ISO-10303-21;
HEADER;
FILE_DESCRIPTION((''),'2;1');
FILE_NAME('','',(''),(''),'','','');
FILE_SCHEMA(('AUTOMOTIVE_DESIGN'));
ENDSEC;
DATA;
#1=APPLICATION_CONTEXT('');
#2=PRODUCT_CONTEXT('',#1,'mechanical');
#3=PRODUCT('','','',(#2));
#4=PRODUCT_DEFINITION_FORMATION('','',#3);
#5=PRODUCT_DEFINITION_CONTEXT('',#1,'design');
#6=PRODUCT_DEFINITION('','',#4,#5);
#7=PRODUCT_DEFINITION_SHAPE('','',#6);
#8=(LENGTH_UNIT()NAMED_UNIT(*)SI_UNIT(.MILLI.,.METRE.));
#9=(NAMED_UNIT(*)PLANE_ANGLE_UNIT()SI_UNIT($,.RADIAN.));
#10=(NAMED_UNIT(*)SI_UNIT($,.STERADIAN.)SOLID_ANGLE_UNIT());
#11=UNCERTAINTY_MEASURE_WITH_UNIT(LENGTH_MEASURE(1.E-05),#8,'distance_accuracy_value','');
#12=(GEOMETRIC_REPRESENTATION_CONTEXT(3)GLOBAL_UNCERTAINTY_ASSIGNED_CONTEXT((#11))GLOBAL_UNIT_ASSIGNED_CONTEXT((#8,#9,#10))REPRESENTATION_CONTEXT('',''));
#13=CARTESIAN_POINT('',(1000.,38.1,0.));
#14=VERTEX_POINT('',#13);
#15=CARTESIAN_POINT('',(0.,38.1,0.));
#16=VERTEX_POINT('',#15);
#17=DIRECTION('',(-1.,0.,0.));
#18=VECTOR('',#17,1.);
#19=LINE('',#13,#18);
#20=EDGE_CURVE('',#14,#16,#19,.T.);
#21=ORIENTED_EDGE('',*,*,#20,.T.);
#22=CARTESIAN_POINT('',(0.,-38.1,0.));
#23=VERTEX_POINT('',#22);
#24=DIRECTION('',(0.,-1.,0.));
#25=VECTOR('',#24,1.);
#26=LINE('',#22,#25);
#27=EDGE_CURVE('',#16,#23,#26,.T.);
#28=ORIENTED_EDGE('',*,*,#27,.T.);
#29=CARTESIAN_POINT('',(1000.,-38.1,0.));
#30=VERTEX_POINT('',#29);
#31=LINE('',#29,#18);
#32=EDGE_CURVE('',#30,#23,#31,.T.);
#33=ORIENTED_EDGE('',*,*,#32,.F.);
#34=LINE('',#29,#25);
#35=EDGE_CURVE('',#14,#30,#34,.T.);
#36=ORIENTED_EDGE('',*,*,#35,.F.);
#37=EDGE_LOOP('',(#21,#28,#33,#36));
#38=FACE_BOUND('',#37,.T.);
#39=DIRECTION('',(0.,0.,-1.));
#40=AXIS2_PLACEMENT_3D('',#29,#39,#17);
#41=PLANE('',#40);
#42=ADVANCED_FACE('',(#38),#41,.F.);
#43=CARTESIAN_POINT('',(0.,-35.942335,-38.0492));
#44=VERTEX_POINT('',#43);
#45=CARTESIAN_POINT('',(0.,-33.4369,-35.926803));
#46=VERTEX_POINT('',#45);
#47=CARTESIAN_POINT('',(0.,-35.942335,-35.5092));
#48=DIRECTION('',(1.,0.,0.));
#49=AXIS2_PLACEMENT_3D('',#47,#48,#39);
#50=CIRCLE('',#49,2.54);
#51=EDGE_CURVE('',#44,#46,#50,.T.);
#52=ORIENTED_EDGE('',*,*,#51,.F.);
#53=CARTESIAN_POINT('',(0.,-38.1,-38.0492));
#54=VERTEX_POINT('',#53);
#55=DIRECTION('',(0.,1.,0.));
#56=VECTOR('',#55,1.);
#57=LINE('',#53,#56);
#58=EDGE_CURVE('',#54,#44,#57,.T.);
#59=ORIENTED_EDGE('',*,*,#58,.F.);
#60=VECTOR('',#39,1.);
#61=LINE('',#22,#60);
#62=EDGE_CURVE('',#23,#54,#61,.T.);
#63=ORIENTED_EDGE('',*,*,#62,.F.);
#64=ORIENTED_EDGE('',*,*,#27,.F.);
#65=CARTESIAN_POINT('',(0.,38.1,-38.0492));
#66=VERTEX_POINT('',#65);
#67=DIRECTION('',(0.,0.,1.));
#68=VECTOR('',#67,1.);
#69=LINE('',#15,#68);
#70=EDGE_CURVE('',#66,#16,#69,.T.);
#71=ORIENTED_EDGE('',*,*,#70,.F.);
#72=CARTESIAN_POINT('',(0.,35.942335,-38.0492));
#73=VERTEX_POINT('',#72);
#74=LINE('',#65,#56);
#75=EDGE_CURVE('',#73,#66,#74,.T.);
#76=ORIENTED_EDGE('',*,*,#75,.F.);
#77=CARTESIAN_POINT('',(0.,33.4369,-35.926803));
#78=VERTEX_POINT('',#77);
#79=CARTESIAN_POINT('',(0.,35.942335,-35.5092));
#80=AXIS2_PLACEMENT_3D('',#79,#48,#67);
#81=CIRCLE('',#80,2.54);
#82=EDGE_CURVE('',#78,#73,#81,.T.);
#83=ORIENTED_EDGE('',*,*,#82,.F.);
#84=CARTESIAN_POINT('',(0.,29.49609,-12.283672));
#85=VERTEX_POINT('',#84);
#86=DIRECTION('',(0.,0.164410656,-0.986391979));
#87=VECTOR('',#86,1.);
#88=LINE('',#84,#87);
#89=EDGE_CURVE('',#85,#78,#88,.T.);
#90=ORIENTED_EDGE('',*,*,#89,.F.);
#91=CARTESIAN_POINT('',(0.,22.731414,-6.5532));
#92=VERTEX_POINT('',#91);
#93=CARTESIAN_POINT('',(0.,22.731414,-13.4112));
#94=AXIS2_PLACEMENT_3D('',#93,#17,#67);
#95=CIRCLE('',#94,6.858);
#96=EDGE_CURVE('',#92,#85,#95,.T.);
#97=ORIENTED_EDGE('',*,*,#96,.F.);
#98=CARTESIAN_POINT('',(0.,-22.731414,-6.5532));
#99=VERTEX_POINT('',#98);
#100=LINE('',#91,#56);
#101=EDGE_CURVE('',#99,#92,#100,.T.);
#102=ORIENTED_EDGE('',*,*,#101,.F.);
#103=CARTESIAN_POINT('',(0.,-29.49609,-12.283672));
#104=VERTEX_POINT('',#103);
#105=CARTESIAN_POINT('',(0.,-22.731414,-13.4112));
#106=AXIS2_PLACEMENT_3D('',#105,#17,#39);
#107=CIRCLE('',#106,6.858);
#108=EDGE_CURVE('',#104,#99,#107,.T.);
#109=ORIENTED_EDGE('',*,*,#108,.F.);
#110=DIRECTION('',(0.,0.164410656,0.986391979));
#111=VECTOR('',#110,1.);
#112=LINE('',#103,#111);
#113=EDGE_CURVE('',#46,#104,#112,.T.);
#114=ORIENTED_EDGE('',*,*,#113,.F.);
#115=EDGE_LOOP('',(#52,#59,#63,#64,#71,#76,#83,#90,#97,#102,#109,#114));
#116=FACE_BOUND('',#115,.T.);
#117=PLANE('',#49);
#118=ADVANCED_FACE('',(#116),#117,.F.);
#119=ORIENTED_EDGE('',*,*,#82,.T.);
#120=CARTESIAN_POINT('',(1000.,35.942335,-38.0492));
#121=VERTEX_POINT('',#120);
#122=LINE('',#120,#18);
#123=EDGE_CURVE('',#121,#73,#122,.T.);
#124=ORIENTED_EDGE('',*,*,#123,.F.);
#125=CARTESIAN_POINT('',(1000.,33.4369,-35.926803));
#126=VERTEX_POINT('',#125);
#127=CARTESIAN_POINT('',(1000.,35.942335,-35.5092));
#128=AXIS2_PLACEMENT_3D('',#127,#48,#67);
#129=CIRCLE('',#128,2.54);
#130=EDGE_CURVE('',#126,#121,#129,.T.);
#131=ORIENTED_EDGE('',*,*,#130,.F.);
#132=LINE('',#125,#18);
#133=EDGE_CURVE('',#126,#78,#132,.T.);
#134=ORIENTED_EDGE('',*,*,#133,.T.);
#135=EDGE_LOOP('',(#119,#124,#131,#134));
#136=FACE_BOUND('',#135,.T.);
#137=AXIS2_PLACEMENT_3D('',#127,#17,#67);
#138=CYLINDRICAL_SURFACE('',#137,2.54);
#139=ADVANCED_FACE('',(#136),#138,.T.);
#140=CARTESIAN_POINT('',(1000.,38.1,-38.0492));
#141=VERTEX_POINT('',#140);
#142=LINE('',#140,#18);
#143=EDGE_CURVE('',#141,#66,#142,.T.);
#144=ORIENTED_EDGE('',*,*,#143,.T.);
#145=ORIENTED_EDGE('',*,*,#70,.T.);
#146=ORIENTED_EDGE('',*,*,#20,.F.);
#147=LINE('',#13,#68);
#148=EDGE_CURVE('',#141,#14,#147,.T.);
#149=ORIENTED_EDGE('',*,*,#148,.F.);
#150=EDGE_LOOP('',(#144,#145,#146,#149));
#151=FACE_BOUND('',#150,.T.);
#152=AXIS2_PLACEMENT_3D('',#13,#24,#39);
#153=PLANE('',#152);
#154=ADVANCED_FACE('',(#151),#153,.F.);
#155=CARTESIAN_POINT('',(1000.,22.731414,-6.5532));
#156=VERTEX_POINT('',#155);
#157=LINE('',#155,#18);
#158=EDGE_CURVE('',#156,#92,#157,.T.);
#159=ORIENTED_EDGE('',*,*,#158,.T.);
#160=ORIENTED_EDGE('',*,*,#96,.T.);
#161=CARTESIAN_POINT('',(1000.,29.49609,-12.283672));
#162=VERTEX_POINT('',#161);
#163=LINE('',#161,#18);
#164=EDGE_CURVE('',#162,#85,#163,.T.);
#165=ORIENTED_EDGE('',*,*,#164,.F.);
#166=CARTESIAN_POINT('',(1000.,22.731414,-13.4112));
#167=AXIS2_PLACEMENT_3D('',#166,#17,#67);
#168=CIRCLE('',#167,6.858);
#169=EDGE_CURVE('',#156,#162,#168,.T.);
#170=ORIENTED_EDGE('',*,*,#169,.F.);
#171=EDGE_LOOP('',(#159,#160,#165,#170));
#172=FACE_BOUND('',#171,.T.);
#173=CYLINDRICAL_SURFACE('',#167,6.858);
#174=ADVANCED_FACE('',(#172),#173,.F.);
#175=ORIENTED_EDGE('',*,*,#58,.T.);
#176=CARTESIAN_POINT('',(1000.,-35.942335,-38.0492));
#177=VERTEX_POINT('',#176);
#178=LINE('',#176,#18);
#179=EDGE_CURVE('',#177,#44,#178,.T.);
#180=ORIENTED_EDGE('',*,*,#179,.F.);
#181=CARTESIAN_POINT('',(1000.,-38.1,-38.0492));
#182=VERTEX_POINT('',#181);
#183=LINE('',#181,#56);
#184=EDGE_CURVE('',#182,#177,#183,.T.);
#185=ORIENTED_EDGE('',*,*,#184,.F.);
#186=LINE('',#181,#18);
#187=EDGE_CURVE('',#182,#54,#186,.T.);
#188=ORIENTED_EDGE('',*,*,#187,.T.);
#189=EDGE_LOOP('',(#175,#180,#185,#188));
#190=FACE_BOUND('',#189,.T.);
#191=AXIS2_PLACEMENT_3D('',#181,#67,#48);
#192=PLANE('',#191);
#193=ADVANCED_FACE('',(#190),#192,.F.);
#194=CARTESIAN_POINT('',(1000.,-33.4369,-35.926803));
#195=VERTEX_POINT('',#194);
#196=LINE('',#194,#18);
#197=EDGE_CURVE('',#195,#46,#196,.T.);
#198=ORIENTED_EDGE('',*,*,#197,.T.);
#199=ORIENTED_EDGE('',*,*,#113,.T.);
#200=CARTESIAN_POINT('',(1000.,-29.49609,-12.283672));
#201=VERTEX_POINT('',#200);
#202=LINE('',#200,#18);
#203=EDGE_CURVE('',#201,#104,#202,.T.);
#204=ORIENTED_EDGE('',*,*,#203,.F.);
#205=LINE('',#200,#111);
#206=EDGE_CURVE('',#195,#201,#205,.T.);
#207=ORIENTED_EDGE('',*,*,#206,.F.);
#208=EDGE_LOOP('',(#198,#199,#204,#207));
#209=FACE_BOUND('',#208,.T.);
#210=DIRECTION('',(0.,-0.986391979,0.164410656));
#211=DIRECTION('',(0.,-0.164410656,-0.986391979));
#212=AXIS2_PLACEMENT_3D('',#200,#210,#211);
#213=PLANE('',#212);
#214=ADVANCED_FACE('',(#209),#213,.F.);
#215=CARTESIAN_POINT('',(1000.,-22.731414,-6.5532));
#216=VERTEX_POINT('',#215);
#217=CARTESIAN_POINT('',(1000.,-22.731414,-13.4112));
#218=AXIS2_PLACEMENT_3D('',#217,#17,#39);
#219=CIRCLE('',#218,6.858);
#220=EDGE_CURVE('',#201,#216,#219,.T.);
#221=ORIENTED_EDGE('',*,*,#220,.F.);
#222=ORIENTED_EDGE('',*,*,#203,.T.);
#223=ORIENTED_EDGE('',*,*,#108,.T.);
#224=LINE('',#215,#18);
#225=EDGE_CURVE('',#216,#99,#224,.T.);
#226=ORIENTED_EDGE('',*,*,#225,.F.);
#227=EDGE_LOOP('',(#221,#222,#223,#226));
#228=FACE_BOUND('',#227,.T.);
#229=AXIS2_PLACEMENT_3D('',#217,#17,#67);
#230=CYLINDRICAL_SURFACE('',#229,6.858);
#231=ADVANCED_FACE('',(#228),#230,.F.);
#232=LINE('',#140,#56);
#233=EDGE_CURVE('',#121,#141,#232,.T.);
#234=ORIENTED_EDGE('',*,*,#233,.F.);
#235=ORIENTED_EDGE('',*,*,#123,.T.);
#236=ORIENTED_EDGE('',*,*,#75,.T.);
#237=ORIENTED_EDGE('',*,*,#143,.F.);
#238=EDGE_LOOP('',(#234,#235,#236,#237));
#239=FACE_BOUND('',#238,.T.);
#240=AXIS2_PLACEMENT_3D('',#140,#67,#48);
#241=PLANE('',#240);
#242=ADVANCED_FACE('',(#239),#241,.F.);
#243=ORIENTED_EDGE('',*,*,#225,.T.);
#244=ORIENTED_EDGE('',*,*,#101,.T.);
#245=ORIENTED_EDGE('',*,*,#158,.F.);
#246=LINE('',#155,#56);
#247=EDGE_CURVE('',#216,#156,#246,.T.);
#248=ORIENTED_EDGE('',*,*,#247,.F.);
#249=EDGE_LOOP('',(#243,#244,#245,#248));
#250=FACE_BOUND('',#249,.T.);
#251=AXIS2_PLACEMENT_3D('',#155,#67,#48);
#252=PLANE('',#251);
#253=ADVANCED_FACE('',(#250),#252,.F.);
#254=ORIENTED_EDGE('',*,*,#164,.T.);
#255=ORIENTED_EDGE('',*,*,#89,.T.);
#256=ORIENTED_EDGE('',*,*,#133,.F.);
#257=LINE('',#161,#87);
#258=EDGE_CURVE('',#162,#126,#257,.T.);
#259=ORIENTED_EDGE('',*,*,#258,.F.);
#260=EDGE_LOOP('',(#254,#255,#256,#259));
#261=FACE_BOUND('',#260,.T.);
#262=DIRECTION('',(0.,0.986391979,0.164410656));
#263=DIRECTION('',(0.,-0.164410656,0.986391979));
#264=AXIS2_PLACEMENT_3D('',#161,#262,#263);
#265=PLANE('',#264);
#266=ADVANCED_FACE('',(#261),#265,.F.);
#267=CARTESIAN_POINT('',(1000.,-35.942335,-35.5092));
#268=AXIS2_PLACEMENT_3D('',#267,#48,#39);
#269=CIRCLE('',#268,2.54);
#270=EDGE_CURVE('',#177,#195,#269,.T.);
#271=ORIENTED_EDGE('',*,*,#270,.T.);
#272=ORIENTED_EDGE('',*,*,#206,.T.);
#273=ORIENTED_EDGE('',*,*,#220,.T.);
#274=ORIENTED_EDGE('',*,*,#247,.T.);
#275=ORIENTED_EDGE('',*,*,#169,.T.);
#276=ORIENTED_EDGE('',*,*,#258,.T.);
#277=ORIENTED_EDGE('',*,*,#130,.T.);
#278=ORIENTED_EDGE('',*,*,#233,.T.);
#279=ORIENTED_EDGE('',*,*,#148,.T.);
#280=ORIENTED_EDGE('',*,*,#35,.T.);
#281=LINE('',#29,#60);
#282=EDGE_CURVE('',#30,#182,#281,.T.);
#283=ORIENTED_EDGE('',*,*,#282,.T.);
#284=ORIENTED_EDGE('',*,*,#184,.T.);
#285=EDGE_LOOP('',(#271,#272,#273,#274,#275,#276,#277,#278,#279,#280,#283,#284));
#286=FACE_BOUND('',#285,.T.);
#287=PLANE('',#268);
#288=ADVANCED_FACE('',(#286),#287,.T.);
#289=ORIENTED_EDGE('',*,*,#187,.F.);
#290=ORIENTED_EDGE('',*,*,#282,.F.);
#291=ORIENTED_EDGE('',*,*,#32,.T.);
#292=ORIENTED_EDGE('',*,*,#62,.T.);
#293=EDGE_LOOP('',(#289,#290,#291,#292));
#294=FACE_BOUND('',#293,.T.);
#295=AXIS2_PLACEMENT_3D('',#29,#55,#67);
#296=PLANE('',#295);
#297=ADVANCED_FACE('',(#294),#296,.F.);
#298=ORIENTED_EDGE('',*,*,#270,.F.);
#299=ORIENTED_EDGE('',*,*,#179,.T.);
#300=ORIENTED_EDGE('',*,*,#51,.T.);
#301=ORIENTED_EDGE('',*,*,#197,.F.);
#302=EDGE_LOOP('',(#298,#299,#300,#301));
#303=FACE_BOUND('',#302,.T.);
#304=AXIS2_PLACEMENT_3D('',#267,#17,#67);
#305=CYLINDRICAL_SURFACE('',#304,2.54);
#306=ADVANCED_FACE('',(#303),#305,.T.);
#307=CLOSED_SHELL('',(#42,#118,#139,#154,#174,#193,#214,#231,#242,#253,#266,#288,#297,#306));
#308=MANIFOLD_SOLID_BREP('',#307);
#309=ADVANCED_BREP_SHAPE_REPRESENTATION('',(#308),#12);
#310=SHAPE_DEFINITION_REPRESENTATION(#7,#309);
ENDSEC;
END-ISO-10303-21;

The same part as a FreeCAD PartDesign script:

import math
import FreeCAD as App
import Part
import Sketcher

V = App.Vector
Q = App.Units.Quantity

doc = App.newDocument("Part")
body = doc.addObject("PartDesign::Body", "Body")

sketch1 = body.newObject("Sketcher::SketchObject", "Sketch")
sketch1.AttachmentSupport = (doc.getObject("YZ_Plane"), [""])
sketch1.MapMode = "FlatFace"
sketch1.addGeometry(Part.LineSegment(V(38.1, 0, 0), V(-38.1, 0, 0)), False)
sketch1.addGeometry(Part.LineSegment(V(-38.1, 0, 0), V(-38.1, -38.0492, 0)), False)
sketch1.addGeometry(Part.LineSegment(V(-38.1, -38.0492, 0), V(-35.942335, -38.0492, 0)), False)
sketch1.addGeometry(Part.ArcOfCircle(Part.Circle(V(-35.942335, -35.5092, 0), V(0, 0, 1), 2.54), math.radians(-90), math.radians(-9.463)), False)
sketch1.addGeometry(Part.LineSegment(V(-33.4369, -35.926803, 0), V(-29.49609, -12.283672, 0)), False)
sketch1.addGeometry(Part.ArcOfCircle(Part.Circle(V(-22.731414, -13.4112, 0), V(0, 0, 1), 6.858), math.radians(90), math.radians(170.537)), False)
sketch1.addGeometry(Part.LineSegment(V(-22.731414, -6.5532, 0), V(22.731414, -6.5532, 0)), False)
sketch1.addGeometry(Part.ArcOfCircle(Part.Circle(V(22.731414, -13.4112, 0), V(0, 0, 1), 6.858), math.radians(9.463), math.radians(90)), False)
sketch1.addGeometry(Part.LineSegment(V(29.49609, -12.283672, 0), V(33.4369, -35.926803, 0)), False)
sketch1.addGeometry(Part.ArcOfCircle(Part.Circle(V(35.942335, -35.5092, 0), V(0, 0, 1), 2.54), math.radians(-170.537), math.radians(-90)), False)
sketch1.addGeometry(Part.LineSegment(V(35.942335, -38.0492, 0), V(38.1, -38.0492, 0)), False)
sketch1.addGeometry(Part.LineSegment(V(38.1, -38.0492, 0), V(38.1, 0, 0)), False)
sketch1.addConstraint(Sketcher.Constraint("Coincident", 0, 2, 1, 1))
sketch1.addConstraint(Sketcher.Constraint("Coincident", 1, 2, 2, 1))
sketch1.addConstraint(Sketcher.Constraint("Coincident", 2, 2, 3, 1))
sketch1.addConstraint(Sketcher.Constraint("Coincident", 3, 2, 4, 1))
sketch1.addConstraint(Sketcher.Constraint("Coincident", 4, 2, 5, 2))
sketch1.addConstraint(Sketcher.Constraint("Coincident", 5, 1, 6, 1))
sketch1.addConstraint(Sketcher.Constraint("Coincident", 6, 2, 7, 2))
sketch1.addConstraint(Sketcher.Constraint("Coincident", 7, 1, 8, 1))
sketch1.addConstraint(Sketcher.Constraint("Coincident", 8, 2, 9, 1))
sketch1.addConstraint(Sketcher.Constraint("Coincident", 9, 2, 10, 1))
sketch1.addConstraint(Sketcher.Constraint("Coincident", 10, 2, 11, 1))
sketch1.addConstraint(Sketcher.Constraint("Coincident", 11, 2, 0, 1))
sketch1.addConstraint(Sketcher.Constraint("Horizontal", 0))
sketch1.addConstraint(Sketcher.Constraint("Vertical", 1))
sketch1.addConstraint(Sketcher.Constraint("Horizontal", 2))
sketch1.addConstraint(Sketcher.Constraint("Horizontal", 6))
sketch1.addConstraint(Sketcher.Constraint("Horizontal", 10))
sketch1.addConstraint(Sketcher.Constraint("Vertical", 11))
sketch1.addConstraint(Sketcher.Constraint("PointOnObject", 0, 2, -1))
sketch1.addConstraint(Sketcher.Constraint("Radius", 3, Q("0.1 in")))
sketch1.addConstraint(Sketcher.Constraint("Radius", 9, Q("0.1 in")))
sketch1.addConstraint(Sketcher.Constraint("DistanceX", 0, 2, 0, 1, Q("3 in")))
sketch1.addConstraint(Sketcher.Constraint("Radius", 5, Q("0.27 in")))
sketch1.addConstraint(Sketcher.Constraint("Radius", 7, Q("0.27 in")))
sketch1.addConstraint(Sketcher.Constraint("DistanceX", 0, 2, -1, 1, Q("1.5 in")))
sketch1.addConstraint(Sketcher.Constraint("DistanceY", 1, 2, 9, 3, Q("0.1 in")))
sketch1.addConstraint(Sketcher.Constraint("DistanceY", 1, 2, 1, 1, Q("1.498 in")))
sketch1.addConstraint(Sketcher.Constraint("DistanceY", 3, 3, 5, 3, Q("0.87 in")))
sketch1.addConstraint(Sketcher.Constraint("DistanceX", 3, 2, -1, 1, 33.4369))
sketch1.addConstraint(Sketcher.Constraint("DistanceX", -1, 1, 8, 2, 33.4369))
sketch1.addConstraint(Sketcher.Constraint("DistanceX", 2, 1, 2, 2, 2.157665))
sketch1.addConstraint(Sketcher.Constraint("DistanceX", 6, 1, 6, 2, 45.462828))
sketch1.addConstraint(Sketcher.Constraint("DistanceX", 10, 1, 10, 2, 2.157665))
sketch1.addConstraint(Sketcher.Constraint("DistanceX", 4, 2, -1, 1, 29.49609))
sketch1.addConstraint(Sketcher.Constraint("DistanceY", 4, 2, -1, 1, 12.283672))
sketch1.addConstraint(Sketcher.Constraint("DistanceX", -1, 1, 7, 1, 29.49609))
sketch1.addConstraint(Sketcher.Constraint("DistanceY", 7, 1, -1, 1, 12.283672))
sketch1.addConstraint(Sketcher.Constraint("DistanceX", 3, 3, 5, 3, 13.210921))
sketch1.addConstraint(Sketcher.Constraint("DistanceX", 7, 3, 9, 3, 13.210921))
sketch1.addConstraint(Sketcher.Constraint("DistanceX", 3, 3, 5, 1, 13.210921))
pad1 = body.newObject("PartDesign::Pad", "Pad")
pad1.Profile = sketch1
pad1.Length = 1000

doc.recompute()
